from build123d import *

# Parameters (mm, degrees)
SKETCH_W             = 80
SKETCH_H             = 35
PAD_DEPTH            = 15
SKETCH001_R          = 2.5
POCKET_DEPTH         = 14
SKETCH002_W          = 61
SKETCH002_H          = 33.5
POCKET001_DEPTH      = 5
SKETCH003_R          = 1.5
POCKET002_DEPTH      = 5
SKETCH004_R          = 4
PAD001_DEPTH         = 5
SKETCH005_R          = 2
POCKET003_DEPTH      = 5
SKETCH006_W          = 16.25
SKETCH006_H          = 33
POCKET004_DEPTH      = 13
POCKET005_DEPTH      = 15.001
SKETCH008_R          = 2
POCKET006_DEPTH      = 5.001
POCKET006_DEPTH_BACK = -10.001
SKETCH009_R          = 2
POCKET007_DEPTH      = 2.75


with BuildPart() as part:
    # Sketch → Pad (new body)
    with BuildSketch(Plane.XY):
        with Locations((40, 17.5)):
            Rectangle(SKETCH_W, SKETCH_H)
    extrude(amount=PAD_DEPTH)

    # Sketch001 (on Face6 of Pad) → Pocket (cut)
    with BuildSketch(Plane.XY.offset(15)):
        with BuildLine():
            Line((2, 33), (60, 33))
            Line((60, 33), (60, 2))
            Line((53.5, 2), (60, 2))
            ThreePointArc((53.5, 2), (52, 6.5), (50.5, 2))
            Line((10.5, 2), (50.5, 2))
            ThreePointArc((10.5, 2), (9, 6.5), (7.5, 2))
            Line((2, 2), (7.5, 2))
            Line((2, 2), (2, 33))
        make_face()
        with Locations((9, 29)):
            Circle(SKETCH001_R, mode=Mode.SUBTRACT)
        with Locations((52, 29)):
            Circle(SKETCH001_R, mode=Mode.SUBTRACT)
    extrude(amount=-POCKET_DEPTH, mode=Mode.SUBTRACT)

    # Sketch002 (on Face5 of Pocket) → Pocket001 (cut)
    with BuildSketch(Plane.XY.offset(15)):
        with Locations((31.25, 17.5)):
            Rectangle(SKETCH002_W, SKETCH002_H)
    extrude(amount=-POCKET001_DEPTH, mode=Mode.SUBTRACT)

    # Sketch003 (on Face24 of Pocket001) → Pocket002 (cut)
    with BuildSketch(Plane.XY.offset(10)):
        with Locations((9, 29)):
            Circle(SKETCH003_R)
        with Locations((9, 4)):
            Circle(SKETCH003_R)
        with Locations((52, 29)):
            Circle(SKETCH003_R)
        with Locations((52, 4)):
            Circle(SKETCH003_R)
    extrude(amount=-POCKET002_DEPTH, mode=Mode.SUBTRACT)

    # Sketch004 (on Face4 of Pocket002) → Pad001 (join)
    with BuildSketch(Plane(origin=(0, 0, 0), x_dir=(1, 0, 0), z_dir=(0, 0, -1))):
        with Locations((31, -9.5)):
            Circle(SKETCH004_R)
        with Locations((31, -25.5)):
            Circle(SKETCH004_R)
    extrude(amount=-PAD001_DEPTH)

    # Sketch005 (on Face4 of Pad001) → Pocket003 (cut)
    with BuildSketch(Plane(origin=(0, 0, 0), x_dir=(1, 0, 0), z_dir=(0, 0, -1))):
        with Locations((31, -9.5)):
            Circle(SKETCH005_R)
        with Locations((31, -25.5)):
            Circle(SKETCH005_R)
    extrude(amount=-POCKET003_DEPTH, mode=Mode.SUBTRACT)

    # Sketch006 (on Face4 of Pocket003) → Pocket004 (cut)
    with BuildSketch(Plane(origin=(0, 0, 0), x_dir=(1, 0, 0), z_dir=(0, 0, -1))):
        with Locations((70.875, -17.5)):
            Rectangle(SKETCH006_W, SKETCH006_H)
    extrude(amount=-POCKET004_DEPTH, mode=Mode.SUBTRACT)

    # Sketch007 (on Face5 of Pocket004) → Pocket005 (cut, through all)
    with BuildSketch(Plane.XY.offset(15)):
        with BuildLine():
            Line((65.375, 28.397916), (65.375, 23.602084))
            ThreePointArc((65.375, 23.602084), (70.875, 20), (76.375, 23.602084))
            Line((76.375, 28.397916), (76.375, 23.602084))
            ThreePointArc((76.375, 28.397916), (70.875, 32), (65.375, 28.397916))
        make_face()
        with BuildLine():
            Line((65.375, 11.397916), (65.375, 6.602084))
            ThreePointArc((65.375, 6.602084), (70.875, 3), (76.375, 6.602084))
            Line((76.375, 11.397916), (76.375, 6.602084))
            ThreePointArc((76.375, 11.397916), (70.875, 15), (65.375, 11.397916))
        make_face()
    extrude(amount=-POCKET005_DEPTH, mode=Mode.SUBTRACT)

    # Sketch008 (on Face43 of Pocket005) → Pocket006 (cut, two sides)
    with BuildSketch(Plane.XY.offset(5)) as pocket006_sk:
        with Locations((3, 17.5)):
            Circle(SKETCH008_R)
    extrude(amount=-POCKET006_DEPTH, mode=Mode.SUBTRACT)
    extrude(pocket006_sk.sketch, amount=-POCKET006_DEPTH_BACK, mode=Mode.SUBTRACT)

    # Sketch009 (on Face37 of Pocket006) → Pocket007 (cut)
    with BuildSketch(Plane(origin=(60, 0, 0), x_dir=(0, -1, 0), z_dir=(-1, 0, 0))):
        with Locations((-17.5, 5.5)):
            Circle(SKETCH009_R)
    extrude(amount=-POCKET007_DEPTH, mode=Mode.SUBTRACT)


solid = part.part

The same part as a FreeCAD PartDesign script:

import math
import FreeCAD as App
import Part
import Sketcher

V = App.Vector
Q = App.Units.Quantity

doc = App.newDocument("Part")
body = doc.addObject("PartDesign::Body", "Body")

# Sketch on XY plane
sketch1 = body.newObject("Sketcher::SketchObject", "Sketch")
sketch1.AttachmentSupport = (doc.getObject("XY_Plane"), [""])
sketch1.MapMode = "FlatFace"
sketch1.addGeometry(Part.LineSegment(V(0, 35, 0), V(0, 0, 0)), False)
sketch1.addGeometry(Part.LineSegment(V(0, 0, 0), V(80, 0, 0)), False)
sketch1.addGeometry(Part.LineSegment(V(80, 0, 0), V(80, 35, 0)), False)
sketch1.addGeometry(Part.LineSegment(V(80, 35, 0), V(0, 35, 0)), False)
sketch1.addConstraint(Sketcher.Constraint("Coincident", 0, 2, 1, 1))
sketch1.addConstraint(Sketcher.Constraint("Coincident", 1, 2, 2, 1))
sketch1.addConstraint(Sketcher.Constraint("Coincident", 2, 2, 3, 1))
sketch1.addConstraint(Sketcher.Constraint("Coincident", 3, 2, 0, 1))
sketch1.addConstraint(Sketcher.Constraint("Vertical", 0))
sketch1.addConstraint(Sketcher.Constraint("Horizontal", 1))
sketch1.addConstraint(Sketcher.Constraint("Vertical", 2))
sketch1.addConstraint(Sketcher.Constraint("Horizontal", 3))
sketch1.addConstraint(Sketcher.Constraint("Coincident", 0, 2, -1, 1))
sketch1.addConstraint(Sketcher.Constraint("DistanceX", 1, 1, 1, 2, Q("80 mm")))
sketch1.addConstraint(Sketcher.Constraint("DistanceY", 0, 2, 0, 1, Q("35 mm")))
pad1 = body.newObject("PartDesign::Pad", "Pad")
pad1.Profile = sketch1
pad1.Length = 15

# Sketch on XY plane
sketch2 = body.newObject("Sketcher::SketchObject", "Sketch001")
sketch2.AttachmentSupport = (doc.getObject("XY_Plane"), [""])
sketch2.MapMode = "FlatFace"
sketch2.AttachmentOffset = App.Placement(V(0, 0, 15), App.Rotation())
sketch2.addGeometry(Part.LineSegment(V(60, 33, 0), V(2, 33, 0)), False)
sketch2.addGeometry(Part.LineSegment(V(2, 33, 0), V(2, 2, 0)), False)
sketch2.addGeometry(Part.LineSegment(V(2, 2, 0), V(7.5, 2, 0)), False)
sketch2.addGeometry(Part.ArcOfCircle(Part.Circle(V(9, 4, 0), V(0, 0, 1), 2.5), math.radians(-53.130102), math.radians(233.130102)), False)
sketch2.addGeometry(Part.LineSegment(V(10.5, 2, 0), V(50.5, 2, 0)), False)
sketch2.addGeometry(Part.ArcOfCircle(Part.Circle(V(52, 4, 0), V(0, 0, 1), 2.5), math.radians(-53.130102), math.radians(233.130102)), False)
sketch2.addGeometry(Part.LineSegment(V(53.5, 2, 0), V(60, 2, 0)), False)
sketch2.addGeometry(Part.LineSegment(V(60, 2, 0), V(60, 33, 0)), False)
sketch2.addGeometry(Part.Circle(V(52, 29, 0), V(0, 0, 1), 2.5), False)
sketch2.addGeometry(Part.Circle(V(9, 29, 0), V(0, 0, 1), 2.5), False)
sketch2.addConstraint(Sketcher.Constraint("Coincident", 0, 2, 1, 1))
sketch2.addConstraint(Sketcher.Constraint("Coincident", 1, 2, 2, 1))
sketch2.addConstraint(Sketcher.Constraint("Coincident", 2, 2, 3, 2))
sketch2.addConstraint(Sketcher.Constraint("Coincident", 3, 1, 4, 1))
sketch2.addConstraint(Sketcher.Constraint("Coincident", 4, 2, 5, 2))
sketch2.addConstraint(Sketcher.Constraint("Coincident", 5, 1, 6, 1))
sketch2.addConstraint(Sketcher.Constraint("Coincident", 6, 2, 7, 1))
sketch2.addConstraint(Sketcher.Constraint("Coincident", 7, 2, 0, 1))
sketch2.addConstraint(Sketcher.Constraint("Horizontal", 0))
sketch2.addConstraint(Sketcher.Constraint("Vertical", 1))
sketch2.addConstraint(Sketcher.Constraint("Horizontal", 2))
sketch2.addConstraint(Sketcher.Constraint("Horizontal", 4))
sketch2.addConstraint(Sketcher.Constraint("Horizontal", 6))
sketch2.addConstraint(Sketcher.Constraint("Vertical", 7))
sketch2.addConstraint(Sketcher.Constraint("Equal", 3, 5))
sketch2.addConstraint(Sketcher.Constraint("Equal", 5, 8))
sketch2.addConstraint(Sketcher.Constraint("Equal", 8, 9))
sketch2.addConstraint(Sketcher.Constraint("Horizontal", 3, 3, 5, 3))
sketch2.addConstraint(Sketcher.Constraint("Horizontal", 8, 3, 9, 3))
sketch2.addConstraint(Sketcher.Constraint("Horizontal", 2, 2, 3, 1))
sketch2.addConstraint(Sketcher.Constraint("Horizontal", 4, 2, 5, 1))
sketch2.addConstraint(Sketcher.Constraint("Vertical", 5, 3, 8, 3))
sketch2.addConstraint(Sketcher.Constraint("Vertical", 3, 3, 9, 3))
sketch2.addConstraint(Sketcher.Constraint("Diameter", 8, Q("5 mm")))
sketch2.addConstraint(Sketcher.Constraint("DistanceX", 0, 2, 0, 1, Q("58 mm")))
sketch2.addConstraint(Sketcher.Constraint("DistanceX", 4, 1, 4, 2, Q("40 mm")))
sketch2.addConstraint(Sketcher.Constraint("DistanceY", 1, 2, 1, 1, Q("31 mm")))
sketch2.addConstraint(Sketcher.Constraint("DistanceX", 2, 1, 2, 2, Q("5.5 mm")))
sketch2.addConstraint(Sketcher.Constraint("DistanceX", 6, 1, 6, 2, Q("6.5 mm")))
sketch2.addConstraint(Sketcher.Constraint("DistanceX", -1, 1, 3, 3, Q("9 mm")))
sketch2.addConstraint(Sketcher.Constraint("DistanceY", -1, 1, 3, 3, Q("4 mm")))
sketch2.addConstraint(Sketcher.Constraint("DistanceY", -1, 1, 8, 3, Q("29 mm")))
pocket1 = body.newObject("PartDesign::Pocket", "Pocket")
pocket1.Profile = sketch2
pocket1.Length = 14

# Sketch on XY plane
sketch3 = body.newObject("Sketcher::SketchObject", "Sketch002")
sketch3.AttachmentSupport = (doc.getObject("XY_Plane"), [""])
sketch3.MapMode = "FlatFace"
sketch3.AttachmentOffset = App.Placement(V(0, 0, 15), App.Rotation())
sketch3.addGeometry(Part.LineSegment(V(0.75, 34.25, 0), V(0.75, 0.75, 0)), False)
sketch3.addGeometry(Part.LineSegment(V(0.75, 0.75, 0), V(61.75, 0.75, 0)), False)
sketch3.addGeometry(Part.LineSegment(V(61.75, 0.75, 0), V(61.75, 34.25, 0)), False)
sketch3.addGeometry(Part.LineSegment(V(61.75, 34.25, 0), V(0.75, 34.25, 0)), False)
sketch3.addConstraint(Sketcher.Constraint("Coincident", 0, 2, 1, 1))
sketch3.addConstraint(Sketcher.Constraint("Coincident", 1, 2, 2, 1))
sketch3.addConstraint(Sketcher.Constraint("Coincident", 2, 2, 3, 1))
sketch3.addConstraint(Sketcher.Constraint("Coincident", 3, 2, 0, 1))
sketch3.addConstraint(Sketcher.Constraint("Vertical", 0))
sketch3.addConstraint(Sketcher.Constraint("Horizontal", 1))
sketch3.addConstraint(Sketcher.Constraint("Vertical", 2))
sketch3.addConstraint(Sketcher.Constraint("Horizontal", 3))
sketch3.addConstraint(Sketcher.Constraint("DistanceX", 1, 1, 1, 2, Q("61 mm")))
sketch3.addConstraint(Sketcher.Constraint("DistanceY", 0, 2, 0, 1, Q("33.5 mm")))
sketch3.addConstraint(Sketcher.Constraint("DistanceX", -1, 1, 0, 2, Q("0.75 mm")))
sketch3.addConstraint(Sketcher.Constraint("DistanceY", -1, 1, 0, 2, Q("0.75 mm")))
pocket2 = body.newObject("PartDesign::Pocket", "Pocket001")
pocket2.Profile = sketch3
pocket2.Length = 5

# Sketch on XY plane
sketch4 = body.newObject("Sketcher::SketchObject", "Sketch003")
sketch4.AttachmentSupport = (doc.getObject("XY_Plane"), [""])
sketch4.MapMode = "FlatFace"
sketch4.AttachmentOffset = App.Placement(V(0, 0, 10), App.Rotation())
sketch4.addGeometry(Part.Circle(V(9, 29, 0), V(0, 0, 1), 1.5), False)
sketch4.addGeometry(Part.Circle(V(9, 4, 0), V(0, 0, 1), 1.5), False)
sketch4.addGeometry(Part.Circle(V(52, 29, 0), V(0, 0, 1), 1.5), False)
sketch4.addGeometry(Part.Circle(V(52, 4, 0), V(0, 0, 1), 1.5), False)
sketch4.addConstraint(Sketcher.Constraint("Equal", 0, 1))
sketch4.addConstraint(Sketcher.Constraint("Equal", 1, 2))
sketch4.addConstraint(Sketcher.Constraint("Equal", 2, 3))
sketch4.addConstraint(Sketcher.Constraint("Horizontal", 0, 3, 2, 3))
sketch4.addConstraint(Sketcher.Constraint("Horizontal", 1, 3, 3, 3))
sketch4.addConstraint(Sketcher.Constraint("Vertical", 0, 3, 1, 3))
sketch4.addConstraint(Sketcher.Constraint("Vertical", 2, 3, 3, 3))
sketch4.addConstraint(Sketcher.Constraint("Diameter", 0, Q("3 mm")))
sketch4.addConstraint(Sketcher.Constraint("DistanceX", -1, 1, 0, 3, Q("9 mm")))
sketch4.addConstraint(Sketcher.Constraint("DistanceY", -1, 1, 0, 3, Q("29 mm")))
sketch4.addConstraint(Sketcher.Constraint("DistanceY", -1, 1, 1, 3, Q("4 mm")))
sketch4.addConstraint(Sketcher.Constraint("DistanceX", -1, 1, 2, 3, Q("52 mm")))
pocket3 = body.newObject("PartDesign::Pocket", "Pocket002")
pocket3.Profile = sketch4
pocket3.Length = 5

# Sketch on XY plane
sketch5 = body.newObject("Sketcher::SketchObject", "Sketch004")
sketch5.AttachmentSupport = (doc.getObject("XY_Plane"), [""])
sketch5.MapMode = "FlatFace"
sketch5.addGeometry(Part.Circle(V(31, 9.5, 0), V(0, 0, 1), 4), False)
sketch5.addGeometry(Part.Circle(V(31, 25.5, 0), V(0, 0, 1), 4), False)
sketch5.addConstraint(Sketcher.Constraint("Equal", 0, 1))
sketch5.addConstraint(Sketcher.Constraint("Vertical", 0, 3, 1, 3))
sketch5.addConstraint(Sketcher.Constraint("Diameter", 0, Q("8 mm")))
sketch5.addConstraint(Sketcher.Constraint("DistanceX", -1, 1, 0, 3, Q("31 mm")))
sketch5.addConstraint(Sketcher.Constraint("DistanceY", 0, 3, 1, 3, Q("16 mm")))
sketch5.addConstraint(Sketcher.Constraint("DistanceY", -1, 1, 0, 3, Q("9.5 mm")))
pad2 = body.newObject("PartDesign::Pad", "Pad001")
pad2.Profile = sketch5
pad2.Length = 5

# Sketch on XY plane
sketch6 = body.newObject("Sketcher::SketchObject", "Sketch005")
sketch6.AttachmentSupport = (doc.getObject("XY_Plane"), [""])
sketch6.MapMode = "FlatFace"
sketch6.addGeometry(Part.Circle(V(31, 9.5, 0), V(0, 0, 1), 2), False)
sketch6.addGeometry(Part.Circle(V(31, 25.5, 0), V(0, 0, 1), 2), False)
sketch6.addConstraint(Sketcher.Constraint("Equal", 0, 1))
sketch6.addConstraint(Sketcher.Constraint("Vertical", 0, 3, 1, 3))
sketch6.addConstraint(Sketcher.Constraint("Diameter", 0, Q("4 mm")))
sketch6.addConstraint(Sketcher.Constraint("DistanceX", -1, 1, 0, 3, Q("31 mm")))
sketch6.addConstraint(Sketcher.Constraint("DistanceY", 0, 3, 1, 3, Q("16 mm")))
sketch6.addConstraint(Sketcher.Constraint("DistanceY", -1, 1, 0, 3, Q("9.5 mm")))
pocket4 = body.newObject("PartDesign::Pocket", "Pocket003")
pocket4.Profile = sketch6
pocket4.Length = 5
pocket4.Reversed = True

# Sketch on XY plane
sketch7 = body.newObject("Sketcher::SketchObject", "Sketch006")
sketch7.AttachmentSupport = (doc.getObject("XY_Plane"), [""])
sketch7.MapMode = "FlatFace"
sketch7.addGeometry(Part.LineSegment(V(62.75, 1, 0), V(62.75, 34, 0)), False)
sketch7.addGeometry(Part.LineSegment(V(62.75, 34, 0), V(79, 34, 0)), False)
sketch7.addGeometry(Part.LineSegment(V(79, 34, 0), V(79, 1, 0)), False)
sketch7.addGeometry(Part.LineSegment(V(79, 1, 0), V(62.75, 1, 0)), False)
sketch7.addConstraint(Sketcher.Constraint("Coincident", 0, 2, 1, 1))
sketch7.addConstraint(Sketcher.Constraint("Coincident", 1, 2, 2, 1))
sketch7.addConstraint(Sketcher.Constraint("Coincident", 2, 2, 3, 1))
sketch7.addConstraint(Sketcher.Constraint("Coincident", 3, 2, 0, 1))
sketch7.addConstraint(Sketcher.Constraint("Vertical", 0))
sketch7.addConstraint(Sketcher.Constraint("Horizontal", 1))
sketch7.addConstraint(Sketcher.Constraint("Vertical", 2))
sketch7.addConstraint(Sketcher.Constraint("Horizontal", 3))
sketch7.addConstraint(Sketcher.Constraint("DistanceY", 0, 1, 0, 2, Q("33 mm")))
sketch7.addConstraint(Sketcher.Constraint("DistanceY", -1, 1, 0, 2, Q("34 mm")))
sketch7.addConstraint(Sketcher.Constraint("DistanceX", -1, 1, 1, 2, Q("79 mm")))
sketch7.addConstraint(Sketcher.Constraint("DistanceX", 1, 1, 1, 2, Q("16.25 mm")))
pocket5 = body.newObject("PartDesign::Pocket", "Pocket004")
pocket5.Profile = sketch7
pocket5.Length = 13
pocket5.Reversed = True

# Sketch on XY plane
sketch8 = body.newObject("Sketcher::SketchObject", "Sketch007")
sketch8.AttachmentSupport = (doc.getObject("XY_Plane"), [""])
sketch8.MapMode = "FlatFace"
sketch8.AttachmentOffset = App.Placement(V(0, 0, 15), App.Rotation())
sketch8.addGeometry(Part.LineSegment(V(65.375, 28.397916, 0), V(65.375, 23.602084, 0)), False)
sketch8.addGeometry(Part.ArcOfCircle(Part.Circle(V(70.875, 26, 0), V(0, 0, 1), 6), math.radians(-156.443532), math.radians(-23.556468)), False)
sketch8.addGeometry(Part.LineSegment(V(76.375, 23.602084, 0), V(76.375, 28.397916, 0)), False)
sketch8.addGeometry(Part.ArcOfCircle(Part.Circle(V(70.875, 26, 0), V(0, 0, 1), 6), math.radians(23.556468), math.radians(156.443532)), False)
sketch8.addGeometry(Part.LineSegment(V(65.375, 11.397916, 0), V(65.375, 6.602084, 0)), False)
sketch8.addGeometry(Part.ArcOfCircle(Part.Circle(V(70.875, 9, 0), V(0, 0, 1), 6), math.radians(-156.443532), math.radians(-23.556468)), False)
sketch8.addGeometry(Part.LineSegment(V(76.375, 6.602084, 0), V(76.375, 11.397916, 0)), False)
sketch8.addGeometry(Part.ArcOfCircle(Part.Circle(V(70.875, 9, 0), V(0, 0, 1), 6), math.radians(23.556468), math.radians(156.443532)), False)
sketch8.addConstraint(Sketcher.Constraint("Coincident", 0, 2, 1, 1))
sketch8.addConstraint(Sketcher.Constraint("Coincident", 1, 2, 2, 1))
sketch8.addConstraint(Sketcher.Constraint("Coincident", 2, 2, 3, 1))
sketch8.addConstraint(Sketcher.Constraint("Coincident", 3, 2, 0, 1))
sketch8.addConstraint(Sketcher.Constraint("Coincident", 4, 2, 5, 1))
sketch8.addConstraint(Sketcher.Constraint("Coincident", 5, 2, 6, 1))
sketch8.addConstraint(Sketcher.Constraint("Coincident", 6, 2, 7, 1))
sketch8.addConstraint(Sketcher.Constraint("Coincident", 7, 2, 4, 1))
sketch8.addConstraint(Sketcher.Constraint("Vertical", 0))
sketch8.addConstraint(Sketcher.Constraint("Vertical", 2))
sketch8.addConstraint(Sketcher.Constraint("Vertical", 4))
sketch8.addConstraint(Sketcher.Constraint("Vertical", 6))
sketch8.addConstraint(Sketcher.Constraint("Coincident", 3, 3, 1, 3))
sketch8.addConstraint(Sketcher.Constraint("Coincident", 7, 3, 5, 3))
sketch8.addConstraint(Sketcher.Constraint("Equal", 1, 3))
sketch8.addConstraint(Sketcher.Constraint("Equal", 3, 5))
sketch8.addConstraint(Sketcher.Constraint("Equal", 5, 7))
sketch8.addConstraint(Sketcher.Constraint("Horizontal", 0, 2, 1, 2))
sketch8.addConstraint(Sketcher.Constraint("Horizontal", 4, 2, 5, 2))
sketch8.addConstraint(Sketcher.Constraint("Vertical", 3, 3, 5, 3))
sketch8.addConstraint(Sketcher.Constraint("Vertical", 3, 2, 4, 2))
sketch8.addConstraint(Sketcher.Constraint("Radius", 1, Q("6 mm")))
sketch8.addConstraint(Sketcher.Constraint("DistanceY", -1, 1, 1, 3, Q("26 mm")))
sketch8.addConstraint(Sketcher.Constraint("DistanceY", -1, 1, 5, 3, Q("9 mm")))
sketch8.addConstraint(Sketcher.Constraint("DistanceX", 0, 2, 1, 2, Q("11 mm")))
sketch8.addConstraint(Sketcher.Constraint("DistanceX", -1, 1, 1, 3, Q("70.875 mm")))
pocket6 = body.newObject("PartDesign::Pocket", "Pocket005")
pocket6.Profile = sketch8
pocket6.Type = "ThroughAll"

# Sketch on XY plane
sketch9 = body.newObject("Sketcher::SketchObject", "Sketch008")
sketch9.AttachmentSupport = (doc.getObject("XY_Plane"), [""])
sketch9.MapMode = "FlatFace"
sketch9.AttachmentOffset = App.Placement(V(0, 0, 5), App.Rotation())
sketch9.addGeometry(Part.Circle(V(3, 17.5, 0), V(0, 0, 1), 2), False)
sketch9.addConstraint(Sketcher.Constraint("Diameter", 0, Q("4 mm")))
sketch9.addConstraint(Sketcher.Constraint("DistanceX", -1, 1, 0, 3, Q("3 mm")))
sketch9.addConstraint(Sketcher.Constraint("DistanceY", -1, 1, 0, 3, Q("17.5 mm")))
pocket7 = body.newObject("PartDesign::Pocket", "Pocket006")
pocket7.Profile = sketch9
pocket7.Type = "ThroughAll"
pocket7.Midplane = True

# Sketch on YZ plane
sketch10 = body.newObject("Sketcher::SketchObject", "Sketch009")
sketch10.AttachmentSupport = (doc.getObject("YZ_Plane"), [""])
sketch10.MapMode = "FlatFace"
sketch10.AttachmentOffset = App.Placement(V(0, 0, 60), App.Rotation())
sketch10.addGeometry(Part.Circle(V(17.5, 5.5, 0), V(0, 0, 1), 2), False)
sketch10.addConstraint(Sketcher.Constraint("Diameter", 0, Q("4 mm")))
sketch10.addConstraint(Sketcher.Constraint("DistanceX", -1, 1, 0, 3, Q("17.5 mm")))
sketch10.addConstraint(Sketcher.Constraint("DistanceY", -1, 1, 0, 3, Q("5.5 mm")))
pocket8 = body.newObject("PartDesign::Pocket", "Pocket007")
pocket8.Profile = sketch10
pocket8.Length = 2.75
pocket8.Reversed = True

doc.recompute()
